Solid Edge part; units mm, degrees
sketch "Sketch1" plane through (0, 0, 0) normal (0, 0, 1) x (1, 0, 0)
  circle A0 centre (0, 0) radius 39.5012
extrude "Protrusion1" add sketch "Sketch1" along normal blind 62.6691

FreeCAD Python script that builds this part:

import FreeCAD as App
import Part
import Sketcher
from FreeCAD import Vector
Q = App.Units.Quantity

doc = App.newDocument("Part")
body = doc.addObject("PartDesign::Body", "Body")

# Sketch on XY plane
sketch1 = body.newObject("Sketcher::SketchObject", "Sketch")
sketch1.AttachmentSupport = (doc.getObject("XY_Plane"), [""])
sketch1.MapMode = "FlatFace"
sketch1.addGeometry(Part.Circle(Vector(0, 0, 0), Vector(0, 0, 1), 40), False)
sketch1.addConstraint([
    Sketcher.Constraint("Coincident", 0, 3, -1, 1),
    Sketcher.Constraint("Diameter", 0, Q("79.0024 mm")),
])
pad1 = body.newObject("PartDesign::Pad", "Pad")
pad1.Profile = sketch1
pad1.Length = 62.6691

doc.recompute()
